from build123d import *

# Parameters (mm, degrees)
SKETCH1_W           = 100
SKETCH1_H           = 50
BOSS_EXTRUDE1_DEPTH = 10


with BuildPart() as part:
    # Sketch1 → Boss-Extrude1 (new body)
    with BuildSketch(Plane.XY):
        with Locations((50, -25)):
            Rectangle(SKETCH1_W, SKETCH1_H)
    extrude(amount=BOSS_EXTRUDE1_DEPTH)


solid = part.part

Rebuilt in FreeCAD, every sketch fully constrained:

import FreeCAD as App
import Part
import Sketcher
Q = App.Units.Quantity

doc = App.newDocument("Part")
body = doc.addObject("PartDesign::Body", "Body")

# Sketch on XY plane
sketch1 = body.newObject("Sketcher::SketchObject", "Sketch")
sketch1.AttachmentSupport = (doc.getObject("XY_Plane"), [""])
sketch1.MapMode = "FlatFace"
sketch1.addGeometry([
    Part.LineSegment(App.Vector(0, 0, 0), App.Vector(0, -50, 0)),
    Part.LineSegment(App.Vector(0, -50, 0), App.Vector(100, -50, 0)),
    Part.LineSegment(App.Vector(100, -50, 0), App.Vector(100, 0, 0)),
    Part.LineSegment(App.Vector(100, 0, 0), App.Vector(0, 0, 0)),
], False)
sketch1.addConstraint([
    Sketcher.Constraint("Coincident", 0, 2, 1, 1),
    Sketcher.Constraint("Coincident", 1, 2, 2, 1),
    Sketcher.Constraint("Coincident", 2, 2, 3, 1),
    Sketcher.Constraint("Coincident", 3, 2, 0, 1),
    Sketcher.Constraint("Vertical", 0),
    Sketcher.Constraint("Horizontal", 1),
    Sketcher.Constraint("Vertical", 2),
    Sketcher.Constraint("Horizontal", 3),
    Sketcher.Constraint("Coincident", 3, 2, -1, 1),
    Sketcher.Constraint("DistanceX", 1, 1, 1, 2, Q("100 mm")),
    Sketcher.Constraint("DistanceY", 0, 2, 0, 1, Q("50 mm")),
])
pad1 = body.newObject("PartDesign::Pad", "Pad")
pad1.Profile = sketch1
pad1.Length = 10

doc.recompute()
